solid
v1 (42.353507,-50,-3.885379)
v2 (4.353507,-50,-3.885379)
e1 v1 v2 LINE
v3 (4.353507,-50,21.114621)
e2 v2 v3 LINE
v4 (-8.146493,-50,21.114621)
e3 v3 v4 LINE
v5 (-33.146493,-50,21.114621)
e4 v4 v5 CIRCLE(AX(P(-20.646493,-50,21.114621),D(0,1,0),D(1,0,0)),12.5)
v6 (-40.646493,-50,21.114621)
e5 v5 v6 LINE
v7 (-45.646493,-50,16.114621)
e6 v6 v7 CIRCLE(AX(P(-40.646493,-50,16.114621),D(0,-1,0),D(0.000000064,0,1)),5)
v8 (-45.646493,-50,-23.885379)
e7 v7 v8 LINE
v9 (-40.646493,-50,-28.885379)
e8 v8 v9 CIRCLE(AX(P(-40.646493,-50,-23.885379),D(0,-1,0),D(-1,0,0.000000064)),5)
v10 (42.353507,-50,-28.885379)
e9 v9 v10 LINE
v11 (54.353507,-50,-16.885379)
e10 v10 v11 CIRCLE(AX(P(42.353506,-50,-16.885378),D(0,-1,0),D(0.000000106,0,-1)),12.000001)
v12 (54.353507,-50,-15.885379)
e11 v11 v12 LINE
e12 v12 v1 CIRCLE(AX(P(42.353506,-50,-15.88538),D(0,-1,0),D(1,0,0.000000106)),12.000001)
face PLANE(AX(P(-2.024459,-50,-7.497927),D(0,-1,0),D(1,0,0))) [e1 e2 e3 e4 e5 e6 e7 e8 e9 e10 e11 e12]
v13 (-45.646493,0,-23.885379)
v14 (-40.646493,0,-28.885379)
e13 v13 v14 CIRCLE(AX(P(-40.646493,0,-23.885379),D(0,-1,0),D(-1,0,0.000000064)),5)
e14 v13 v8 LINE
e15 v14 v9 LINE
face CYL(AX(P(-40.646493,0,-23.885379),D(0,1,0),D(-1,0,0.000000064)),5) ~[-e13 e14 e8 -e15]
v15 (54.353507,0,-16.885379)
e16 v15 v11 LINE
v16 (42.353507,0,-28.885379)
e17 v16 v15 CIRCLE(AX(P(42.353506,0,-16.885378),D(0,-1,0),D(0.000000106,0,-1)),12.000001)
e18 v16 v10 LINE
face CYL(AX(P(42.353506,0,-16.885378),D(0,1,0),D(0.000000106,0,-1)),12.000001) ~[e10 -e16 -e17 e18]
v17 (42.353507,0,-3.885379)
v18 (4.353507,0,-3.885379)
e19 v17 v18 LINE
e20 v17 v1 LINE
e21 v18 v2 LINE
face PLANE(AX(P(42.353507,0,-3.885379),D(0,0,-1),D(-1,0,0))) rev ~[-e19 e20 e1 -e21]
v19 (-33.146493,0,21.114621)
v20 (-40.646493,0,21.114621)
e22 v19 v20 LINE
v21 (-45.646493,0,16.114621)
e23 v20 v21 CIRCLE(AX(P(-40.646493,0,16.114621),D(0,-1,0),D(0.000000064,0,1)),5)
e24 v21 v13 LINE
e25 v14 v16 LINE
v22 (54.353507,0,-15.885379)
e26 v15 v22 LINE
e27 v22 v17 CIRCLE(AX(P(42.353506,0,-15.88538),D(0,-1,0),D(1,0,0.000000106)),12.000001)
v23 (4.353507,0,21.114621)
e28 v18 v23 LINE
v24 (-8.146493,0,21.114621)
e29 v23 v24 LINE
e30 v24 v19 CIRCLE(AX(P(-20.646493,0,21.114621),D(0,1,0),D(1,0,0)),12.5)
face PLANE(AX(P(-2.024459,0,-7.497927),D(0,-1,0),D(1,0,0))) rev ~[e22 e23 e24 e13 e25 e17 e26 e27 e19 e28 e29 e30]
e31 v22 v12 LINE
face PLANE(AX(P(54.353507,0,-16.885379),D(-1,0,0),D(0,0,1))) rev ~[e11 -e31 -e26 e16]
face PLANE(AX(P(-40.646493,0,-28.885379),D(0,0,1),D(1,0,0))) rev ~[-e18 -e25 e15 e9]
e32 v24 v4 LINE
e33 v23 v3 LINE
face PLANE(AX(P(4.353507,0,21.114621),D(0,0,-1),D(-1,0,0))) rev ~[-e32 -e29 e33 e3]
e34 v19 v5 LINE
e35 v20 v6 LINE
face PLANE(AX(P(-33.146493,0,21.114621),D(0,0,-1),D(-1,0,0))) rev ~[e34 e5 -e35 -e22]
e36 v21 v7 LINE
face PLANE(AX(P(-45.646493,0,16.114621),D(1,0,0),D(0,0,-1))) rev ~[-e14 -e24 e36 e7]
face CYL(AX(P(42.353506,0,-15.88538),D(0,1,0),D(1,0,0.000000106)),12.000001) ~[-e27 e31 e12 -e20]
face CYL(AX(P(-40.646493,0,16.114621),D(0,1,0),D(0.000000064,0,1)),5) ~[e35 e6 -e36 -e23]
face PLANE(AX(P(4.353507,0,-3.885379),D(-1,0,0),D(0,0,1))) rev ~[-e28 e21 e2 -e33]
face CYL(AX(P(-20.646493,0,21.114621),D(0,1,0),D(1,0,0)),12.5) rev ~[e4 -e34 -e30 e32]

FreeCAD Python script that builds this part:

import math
import FreeCAD as App
import Part
import Sketcher
Q = App.Units.Quantity

doc = App.newDocument("Part")
body = doc.addObject("PartDesign::Body", "Body")

sketch1 = doc.addObject("Sketcher::SketchObject", "Sketch")
body.addObject(sketch1)
sketch1.AttachmentSupport = (doc.XZ_Plane, [""])
sketch1.MapMode = "FlatFace"
sketch1.addGeometry(Part.ArcOfCircle(Part.Circle(App.Vector(-40.6, 16.1, 0), App.Vector(0, 0, 1), 5), math.radians(90), math.radians(180)), False)
sketch1.addGeometry(Part.LineSegment(App.Vector(-45.6, 16.1, 0), App.Vector(-45.6, -23.9, 0)), False)
sketch1.addGeometry(Part.ArcOfCircle(Part.Circle(App.Vector(-40.6, -23.9, 0), App.Vector(0, 0, 1), 5), math.radians(180), math.radians(270)), False)
sketch1.addGeometry(Part.LineSegment(App.Vector(-40.6, -28.9, 0), App.Vector(42.4, -28.9, 0)), False)
sketch1.addGeometry(Part.ArcOfCircle(Part.Circle(App.Vector(42.4, -16.9, 0), App.Vector(0, 0, 1), 12), math.radians(-90), math.radians(0)), False)
sketch1.addGeometry(Part.LineSegment(App.Vector(54.4, -16.9, 0), App.Vector(54.4, -15.9, 0)), False)
sketch1.addGeometry(Part.ArcOfCircle(Part.Circle(App.Vector(42.4, -15.9, 0), App.Vector(0, 0, 1), 12), math.radians(0), math.radians(90)), False)
sketch1.addGeometry(Part.LineSegment(App.Vector(42.4, -3.9, 0), App.Vector(4.4, -3.9, 0)), False)
sketch1.addGeometry(Part.LineSegment(App.Vector(4.4, -3.9, 0), App.Vector(4.4, 21.1, 0)), False)
sketch1.addGeometry(Part.LineSegment(App.Vector(4.4, 21.1, 0), App.Vector(-8.1, 21.1, 0)), False)
sketch1.addGeometry(Part.ArcOfCircle(Part.Circle(App.Vector(-20.6, 21.1, 0), App.Vector(0, 0, 1), 12.5), math.radians(180), math.radians(360)), False)
sketch1.addGeometry(Part.LineSegment(App.Vector(-33.1, 21.1, 0), App.Vector(-40.6, 21.1, 0)), False)
sketch1.addConstraint(Sketcher.Constraint("Tangent", 0, 2, 1, 1))
sketch1.addConstraint(Sketcher.Constraint("Tangent", 1, 2, 2, 1))
sketch1.addConstraint(Sketcher.Constraint("Tangent", 2, 2, 3, 1))
sketch1.addConstraint(Sketcher.Constraint("Tangent", 3, 2, 4, 1))
sketch1.addConstraint(Sketcher.Constraint("Tangent", 4, 2, 5, 1))
sketch1.addConstraint(Sketcher.Constraint("Tangent", 5, 2, 6, 1))
sketch1.addConstraint(Sketcher.Constraint("Tangent", 6, 2, 7, 1))
sketch1.addConstraint(Sketcher.Constraint("Coincident", 7, 2, 8, 1))
sketch1.addConstraint(Sketcher.Constraint("Coincident", 8, 2, 9, 1))
sketch1.addConstraint(Sketcher.Constraint("Coincident", 9, 2, 10, 2))
sketch1.addConstraint(Sketcher.Constraint("Coincident", 10, 1, 11, 1))
sketch1.addConstraint(Sketcher.Constraint("Tangent", 11, 2, 0, 1))
sketch1.addConstraint(Sketcher.Constraint("Vertical", 1))
sketch1.addConstraint(Sketcher.Constraint("Horizontal", 3))
sketch1.addConstraint(Sketcher.Constraint("Vertical", 5))
sketch1.addConstraint(Sketcher.Constraint("Horizontal", 7))
sketch1.addConstraint(Sketcher.Constraint("Vertical", 8))
sketch1.addConstraint(Sketcher.Constraint("Horizontal", 9))
sketch1.addConstraint(Sketcher.Constraint("Horizontal", 11))
sketch1.addConstraint(Sketcher.Constraint("Equal", 0, 2))
sketch1.addConstraint(Sketcher.Constraint("Equal", 4, 6))
sketch1.addConstraint(Sketcher.Constraint("Horizontal", 10, 3, 8, 2))
sketch1.addConstraint(Sketcher.Constraint("Horizontal", 9, 2, 10, 1))
sketch1.addConstraint(Sketcher.Constraint("Radius", 0, Q("5 mm")))
sketch1.addConstraint(Sketcher.Constraint("Radius", 4, Q("12.000001 mm")))
sketch1.addConstraint(Sketcher.Constraint("Radius", 10, Q("12.5 mm")))
sketch1.addConstraint(Sketcher.Constraint("DistanceX", 3, 1, 3, 2, Q("83 mm")))
sketch1.addConstraint(Sketcher.Constraint("DistanceX", 7, 2, 7, 1, Q("38 mm")))
sketch1.addConstraint(Sketcher.Constraint("DistanceY", 1, 2, 1, 1, Q("40 mm")))
sketch1.addConstraint(Sketcher.Constraint("DistanceY", 5, 1, 5, 2, Q("1 mm")))
sketch1.addConstraint(Sketcher.Constraint("DistanceX", 9, 2, 9, 1, Q("12.5 mm")))
sketch1.addConstraint(Sketcher.Constraint("DistanceY", -1, 1, 0, 3, Q("16.114621 mm")))
sketch1.addConstraint(Sketcher.Constraint("DistanceX", 0, 3, -1, 1, Q("40.646493 mm")))
pad1 = doc.addObject("PartDesign::Pad", "Pad")
body.addObject(pad1)
pad1.Profile = sketch1
pad1.Length = 50

doc.recompute()
